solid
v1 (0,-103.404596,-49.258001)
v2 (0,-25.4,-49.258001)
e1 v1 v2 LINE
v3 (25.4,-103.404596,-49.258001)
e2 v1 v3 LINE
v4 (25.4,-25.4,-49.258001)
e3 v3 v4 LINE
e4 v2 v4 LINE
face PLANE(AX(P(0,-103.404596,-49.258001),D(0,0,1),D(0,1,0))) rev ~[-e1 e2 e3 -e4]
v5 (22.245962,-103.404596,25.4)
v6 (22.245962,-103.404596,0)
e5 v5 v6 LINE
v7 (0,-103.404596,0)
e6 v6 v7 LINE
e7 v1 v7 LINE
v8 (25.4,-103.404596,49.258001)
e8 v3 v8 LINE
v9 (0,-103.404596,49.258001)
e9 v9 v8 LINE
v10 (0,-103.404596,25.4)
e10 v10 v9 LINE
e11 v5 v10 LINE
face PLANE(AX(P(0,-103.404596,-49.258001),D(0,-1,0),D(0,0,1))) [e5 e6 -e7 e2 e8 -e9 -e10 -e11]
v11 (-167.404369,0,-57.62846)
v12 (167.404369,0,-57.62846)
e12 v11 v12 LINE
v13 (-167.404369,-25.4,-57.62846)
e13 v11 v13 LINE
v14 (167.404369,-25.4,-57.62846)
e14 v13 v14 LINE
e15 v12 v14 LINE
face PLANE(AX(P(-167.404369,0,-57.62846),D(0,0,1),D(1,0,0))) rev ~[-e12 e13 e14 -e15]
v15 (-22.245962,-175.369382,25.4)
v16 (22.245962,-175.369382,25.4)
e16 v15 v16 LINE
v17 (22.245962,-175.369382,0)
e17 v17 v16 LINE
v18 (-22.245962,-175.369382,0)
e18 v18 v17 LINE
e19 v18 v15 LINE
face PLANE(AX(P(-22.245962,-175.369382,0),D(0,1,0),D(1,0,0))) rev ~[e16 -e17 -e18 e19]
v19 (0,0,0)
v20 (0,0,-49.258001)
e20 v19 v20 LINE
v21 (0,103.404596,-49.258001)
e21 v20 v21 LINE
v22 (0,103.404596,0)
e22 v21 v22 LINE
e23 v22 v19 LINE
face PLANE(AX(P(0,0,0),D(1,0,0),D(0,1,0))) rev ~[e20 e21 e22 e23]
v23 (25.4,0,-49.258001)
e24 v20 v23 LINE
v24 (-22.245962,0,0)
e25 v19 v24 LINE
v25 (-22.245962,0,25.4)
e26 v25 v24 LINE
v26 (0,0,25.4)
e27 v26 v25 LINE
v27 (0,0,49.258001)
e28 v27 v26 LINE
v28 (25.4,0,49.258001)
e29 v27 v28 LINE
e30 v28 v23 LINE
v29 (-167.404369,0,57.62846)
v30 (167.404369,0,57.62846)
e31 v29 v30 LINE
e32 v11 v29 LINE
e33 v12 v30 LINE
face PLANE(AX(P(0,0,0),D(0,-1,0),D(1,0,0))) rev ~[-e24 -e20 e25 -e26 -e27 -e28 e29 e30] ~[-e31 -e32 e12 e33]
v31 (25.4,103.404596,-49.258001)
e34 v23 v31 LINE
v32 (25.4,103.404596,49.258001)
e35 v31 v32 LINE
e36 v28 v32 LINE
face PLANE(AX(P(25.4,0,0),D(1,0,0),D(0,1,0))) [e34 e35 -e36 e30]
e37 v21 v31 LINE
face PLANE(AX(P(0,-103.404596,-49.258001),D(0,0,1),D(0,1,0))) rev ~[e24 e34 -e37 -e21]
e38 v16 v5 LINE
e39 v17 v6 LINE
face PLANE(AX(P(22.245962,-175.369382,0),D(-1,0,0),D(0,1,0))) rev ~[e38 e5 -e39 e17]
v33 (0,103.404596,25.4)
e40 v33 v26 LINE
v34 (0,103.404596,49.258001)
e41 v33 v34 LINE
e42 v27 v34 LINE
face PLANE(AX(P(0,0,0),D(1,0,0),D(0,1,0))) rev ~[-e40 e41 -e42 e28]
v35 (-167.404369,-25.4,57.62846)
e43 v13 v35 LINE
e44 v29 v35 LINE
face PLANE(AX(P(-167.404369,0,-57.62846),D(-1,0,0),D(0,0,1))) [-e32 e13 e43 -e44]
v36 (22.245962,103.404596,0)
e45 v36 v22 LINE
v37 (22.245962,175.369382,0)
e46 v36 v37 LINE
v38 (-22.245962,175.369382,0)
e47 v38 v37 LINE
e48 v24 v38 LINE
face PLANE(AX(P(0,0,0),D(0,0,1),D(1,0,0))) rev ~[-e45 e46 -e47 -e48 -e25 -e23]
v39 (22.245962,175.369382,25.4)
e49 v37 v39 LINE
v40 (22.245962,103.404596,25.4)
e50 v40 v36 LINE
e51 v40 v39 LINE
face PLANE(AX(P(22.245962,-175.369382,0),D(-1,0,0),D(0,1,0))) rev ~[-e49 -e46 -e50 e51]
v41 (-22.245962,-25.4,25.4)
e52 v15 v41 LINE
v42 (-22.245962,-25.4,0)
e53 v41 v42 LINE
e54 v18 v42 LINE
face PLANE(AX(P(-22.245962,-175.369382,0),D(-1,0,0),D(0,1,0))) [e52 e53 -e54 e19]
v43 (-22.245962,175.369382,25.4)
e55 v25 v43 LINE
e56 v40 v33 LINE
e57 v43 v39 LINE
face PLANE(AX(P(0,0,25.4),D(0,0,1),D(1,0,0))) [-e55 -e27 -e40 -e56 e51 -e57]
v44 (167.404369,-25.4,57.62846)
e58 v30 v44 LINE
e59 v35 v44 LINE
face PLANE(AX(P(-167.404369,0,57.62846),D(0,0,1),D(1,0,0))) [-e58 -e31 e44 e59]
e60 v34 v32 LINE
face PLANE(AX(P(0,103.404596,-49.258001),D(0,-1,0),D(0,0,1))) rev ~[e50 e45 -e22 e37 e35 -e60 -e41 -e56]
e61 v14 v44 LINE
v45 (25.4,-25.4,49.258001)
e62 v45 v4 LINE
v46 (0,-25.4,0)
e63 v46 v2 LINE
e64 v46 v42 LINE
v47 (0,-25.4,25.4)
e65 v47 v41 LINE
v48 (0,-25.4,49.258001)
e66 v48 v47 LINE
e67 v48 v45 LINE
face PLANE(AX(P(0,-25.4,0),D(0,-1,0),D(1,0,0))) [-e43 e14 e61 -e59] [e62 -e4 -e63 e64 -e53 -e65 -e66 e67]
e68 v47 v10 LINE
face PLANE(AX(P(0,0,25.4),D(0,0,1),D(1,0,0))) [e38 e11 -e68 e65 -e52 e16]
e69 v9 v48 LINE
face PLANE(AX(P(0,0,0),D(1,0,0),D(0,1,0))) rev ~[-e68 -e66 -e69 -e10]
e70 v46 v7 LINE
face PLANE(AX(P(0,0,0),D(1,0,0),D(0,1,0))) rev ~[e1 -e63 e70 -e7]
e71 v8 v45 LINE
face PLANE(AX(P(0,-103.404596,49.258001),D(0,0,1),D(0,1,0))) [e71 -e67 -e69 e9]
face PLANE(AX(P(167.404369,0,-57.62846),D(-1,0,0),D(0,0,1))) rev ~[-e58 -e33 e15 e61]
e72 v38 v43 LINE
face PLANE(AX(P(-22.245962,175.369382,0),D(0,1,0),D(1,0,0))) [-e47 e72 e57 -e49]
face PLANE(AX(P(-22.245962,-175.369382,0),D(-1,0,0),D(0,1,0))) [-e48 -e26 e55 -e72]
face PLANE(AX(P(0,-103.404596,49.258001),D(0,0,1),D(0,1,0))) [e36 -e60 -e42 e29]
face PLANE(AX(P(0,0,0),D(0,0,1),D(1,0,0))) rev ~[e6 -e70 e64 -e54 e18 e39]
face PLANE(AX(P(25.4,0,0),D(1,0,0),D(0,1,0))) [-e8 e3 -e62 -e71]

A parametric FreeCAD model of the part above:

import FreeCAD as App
import Part
import Sketcher
from FreeCAD import Vector
Q = App.Units.Quantity


def add_polygon(sketch, points):
    """Adds a closed chain of lines whose ends are joined by coincident constraints."""
    first, n = sketch.GeometryCount, len(points)
    for a, b in zip(points, points[1:] + points[:1]):
        sketch.addGeometry(Part.LineSegment(App.Vector(*a, 0), App.Vector(*b, 0)), False)
    for i in range(n):
        sketch.addConstraint(Sketcher.Constraint("Coincident", first + i, 2, first + (i + 1) % n, 1))

doc = App.newDocument("Part")
body = doc.addObject("PartDesign::Body", "Body")

sketch1 = body.newObject("Sketcher::SketchObject", "Sketch")
sketch1.AttachmentSupport = (doc.getObject("YZ_Plane"), [""])
sketch1.MapMode = "FlatFace"
add_polygon(sketch1, [(-103, 49), (-103, -49), (103, -49), (103, 49)])
sketch1.addConstraint([
    Sketcher.Constraint("Vertical", 0),
    Sketcher.Constraint("Horizontal", 1),
    Sketcher.Constraint("Vertical", 2),
    Sketcher.Constraint("Horizontal", 3),
    Sketcher.Constraint("Symmetric", 0, 2, 2, 2, -1, 1),
    Sketcher.Constraint("DistanceY", 0, 2, 0, 1, 98.516002),
    Sketcher.Constraint("DistanceX", 1, 1, 1, 2, 206.809192),
])
pad1 = body.newObject("PartDesign::Pad", "Pad")
pad1.Profile = sketch1
pad1.Length = Q("1 in")

sketch2 = body.newObject("Sketcher::SketchObject", "Sketch001")
sketch2.AttachmentSupport = (doc.getObject("XZ_Plane"), [""])
sketch2.MapMode = "FlatFace"
add_polygon(sketch2, [(-167, 58), (-167, -58), (167, -58), (167, 58)])
sketch2.addConstraint([
    Sketcher.Constraint("Vertical", 0),
    Sketcher.Constraint("Horizontal", 1),
    Sketcher.Constraint("Vertical", 2),
    Sketcher.Constraint("Horizontal", 3),
    Sketcher.Constraint("Symmetric", 0, 2, 2, 2, -1, 1),
    Sketcher.Constraint("DistanceX", 1, 1, 1, 2, 334.808738),
    Sketcher.Constraint("DistanceY", 0, 2, 0, 1, 115.25692),
])
pad2 = body.newObject("PartDesign::Pad", "Pad001")
pad2.Profile = sketch2
pad2.Length = Q("1 in")

sketch3 = body.newObject("Sketcher::SketchObject", "Sketch002")
sketch3.AttachmentSupport = (doc.getObject("XY_Plane"), [""])
sketch3.MapMode = "FlatFace"
add_polygon(sketch3, [(-22, 175), (-22, -175), (22, -175), (22, 175)])
sketch3.addConstraint([
    Sketcher.Constraint("Vertical", 0),
    Sketcher.Constraint("Horizontal", 1),
    Sketcher.Constraint("Vertical", 2),
    Sketcher.Constraint("Horizontal", 3),
    Sketcher.Constraint("Symmetric", 0, 2, 2, 2, -1, 1),
    Sketcher.Constraint("DistanceX", 1, 1, 1, 2, 44.491924),
    Sketcher.Constraint("DistanceY", 0, 2, 0, 1, 350.738764),
])
pad3 = body.newObject("PartDesign::Pad", "Pad002")
pad3.Profile = sketch3
pad3.Length = Q("1 in")

doc.recompute()
